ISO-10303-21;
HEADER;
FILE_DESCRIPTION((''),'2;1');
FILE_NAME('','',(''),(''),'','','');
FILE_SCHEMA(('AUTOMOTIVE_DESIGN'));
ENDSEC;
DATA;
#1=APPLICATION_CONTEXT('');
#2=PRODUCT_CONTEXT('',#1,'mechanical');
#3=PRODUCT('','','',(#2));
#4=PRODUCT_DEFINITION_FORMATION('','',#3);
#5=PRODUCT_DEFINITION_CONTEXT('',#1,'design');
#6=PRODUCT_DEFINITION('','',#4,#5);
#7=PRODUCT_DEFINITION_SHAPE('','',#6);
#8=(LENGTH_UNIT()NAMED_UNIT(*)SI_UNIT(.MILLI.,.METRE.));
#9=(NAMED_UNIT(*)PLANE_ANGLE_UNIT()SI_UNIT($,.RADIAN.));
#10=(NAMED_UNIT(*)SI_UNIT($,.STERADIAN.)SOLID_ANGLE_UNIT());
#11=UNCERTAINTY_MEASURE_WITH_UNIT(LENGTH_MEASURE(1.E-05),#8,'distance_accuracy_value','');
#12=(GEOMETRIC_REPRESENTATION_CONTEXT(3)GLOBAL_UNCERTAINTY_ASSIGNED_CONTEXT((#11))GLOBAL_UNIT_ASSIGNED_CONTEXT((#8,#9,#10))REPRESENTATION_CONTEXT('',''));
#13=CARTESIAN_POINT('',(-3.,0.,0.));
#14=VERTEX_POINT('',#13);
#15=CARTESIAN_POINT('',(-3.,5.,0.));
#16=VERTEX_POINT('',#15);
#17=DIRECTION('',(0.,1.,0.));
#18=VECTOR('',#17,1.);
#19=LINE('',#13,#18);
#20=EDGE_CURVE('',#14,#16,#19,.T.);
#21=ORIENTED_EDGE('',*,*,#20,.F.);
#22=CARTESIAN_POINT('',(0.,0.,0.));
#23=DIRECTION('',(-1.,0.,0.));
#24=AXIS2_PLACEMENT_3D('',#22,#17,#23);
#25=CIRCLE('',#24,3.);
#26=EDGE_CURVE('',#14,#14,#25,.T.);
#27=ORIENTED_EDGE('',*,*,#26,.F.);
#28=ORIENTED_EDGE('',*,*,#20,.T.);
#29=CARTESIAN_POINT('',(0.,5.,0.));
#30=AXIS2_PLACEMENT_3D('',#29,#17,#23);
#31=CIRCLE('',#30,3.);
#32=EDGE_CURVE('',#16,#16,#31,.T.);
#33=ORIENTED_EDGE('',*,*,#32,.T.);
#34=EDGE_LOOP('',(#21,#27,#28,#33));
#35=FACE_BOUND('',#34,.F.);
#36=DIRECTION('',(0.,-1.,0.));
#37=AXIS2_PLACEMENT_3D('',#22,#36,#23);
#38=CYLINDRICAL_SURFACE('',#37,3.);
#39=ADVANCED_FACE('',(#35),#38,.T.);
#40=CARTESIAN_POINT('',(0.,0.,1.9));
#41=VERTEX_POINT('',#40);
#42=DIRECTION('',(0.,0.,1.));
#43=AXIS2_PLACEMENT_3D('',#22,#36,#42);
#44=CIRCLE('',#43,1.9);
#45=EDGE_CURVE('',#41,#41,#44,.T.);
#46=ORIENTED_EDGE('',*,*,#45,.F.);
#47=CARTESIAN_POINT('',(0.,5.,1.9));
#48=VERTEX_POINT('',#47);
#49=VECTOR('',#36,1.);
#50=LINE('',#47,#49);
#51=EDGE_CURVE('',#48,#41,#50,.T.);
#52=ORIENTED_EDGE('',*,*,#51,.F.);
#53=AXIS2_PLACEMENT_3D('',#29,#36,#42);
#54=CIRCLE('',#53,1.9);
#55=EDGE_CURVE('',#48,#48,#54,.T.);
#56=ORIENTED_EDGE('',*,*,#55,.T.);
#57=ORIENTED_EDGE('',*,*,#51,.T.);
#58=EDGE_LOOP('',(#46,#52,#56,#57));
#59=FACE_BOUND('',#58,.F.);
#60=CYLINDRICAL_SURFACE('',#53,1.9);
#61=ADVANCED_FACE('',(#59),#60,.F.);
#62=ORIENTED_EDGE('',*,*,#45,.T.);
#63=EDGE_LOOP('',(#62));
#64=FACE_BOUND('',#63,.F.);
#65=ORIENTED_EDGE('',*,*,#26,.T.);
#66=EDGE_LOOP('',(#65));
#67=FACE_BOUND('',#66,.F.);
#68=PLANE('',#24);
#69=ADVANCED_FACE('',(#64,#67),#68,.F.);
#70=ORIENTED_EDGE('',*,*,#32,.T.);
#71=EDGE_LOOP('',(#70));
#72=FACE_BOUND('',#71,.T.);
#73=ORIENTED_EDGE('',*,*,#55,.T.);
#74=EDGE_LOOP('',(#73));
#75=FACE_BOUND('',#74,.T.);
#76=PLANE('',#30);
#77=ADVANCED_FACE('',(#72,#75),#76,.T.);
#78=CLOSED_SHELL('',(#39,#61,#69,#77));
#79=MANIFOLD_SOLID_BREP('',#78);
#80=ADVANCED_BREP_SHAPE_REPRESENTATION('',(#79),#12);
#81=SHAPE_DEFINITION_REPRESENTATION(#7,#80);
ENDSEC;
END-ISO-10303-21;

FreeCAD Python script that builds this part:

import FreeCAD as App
import Part
import Sketcher

V = App.Vector
Q = App.Units.Quantity

doc = App.newDocument("Part")
body = doc.addObject("PartDesign::Body", "Body")

# Sketch on XZ plane
sketch1 = body.newObject("Sketcher::SketchObject", "Sketch")
sketch1.AttachmentSupport = (doc.getObject("XZ_Plane"), [""])
sketch1.MapMode = "FlatFace"
sketch1.addGeometry(Part.Circle(V(0, 0, 0), V(0, 0, 1), 3), False)
sketch1.addConstraint([
    Sketcher.Constraint("Coincident", 0, 3, -1, 1),
    Sketcher.Constraint("Diameter", 0, Q("6 mm")),
])
pad1 = body.newObject("PartDesign::Pad", "Pad")
pad1.Profile = sketch1
pad1.Length = 5
pad1.Reversed = True

# Sketch on XZ plane
sketch2 = body.newObject("Sketcher::SketchObject", "Sketch001")
sketch2.AttachmentSupport = (doc.getObject("XZ_Plane"), [""])
sketch2.MapMode = "FlatFace"
sketch2.AttachmentOffset = App.Placement(V(0, 0, -5), App.Rotation())
sketch2.addGeometry(Part.Circle(V(0, 0, 0), V(0, 0, 1), 1.9), False)
sketch2.addConstraint([
    Sketcher.Constraint("Coincident", 0, 3, -1, 1),
    Sketcher.Constraint("Diameter", 0, Q("3.8 mm")),
])
doc.recompute()
hole = body.newObject("PartDesign::Hole", "Hole")
hole.Profile = sketch2
hole.ThreadType = "None"
hole.Diameter = 3.8
hole.DepthType = "ThroughAll"
hole.Reversed = True

doc.recompute()
